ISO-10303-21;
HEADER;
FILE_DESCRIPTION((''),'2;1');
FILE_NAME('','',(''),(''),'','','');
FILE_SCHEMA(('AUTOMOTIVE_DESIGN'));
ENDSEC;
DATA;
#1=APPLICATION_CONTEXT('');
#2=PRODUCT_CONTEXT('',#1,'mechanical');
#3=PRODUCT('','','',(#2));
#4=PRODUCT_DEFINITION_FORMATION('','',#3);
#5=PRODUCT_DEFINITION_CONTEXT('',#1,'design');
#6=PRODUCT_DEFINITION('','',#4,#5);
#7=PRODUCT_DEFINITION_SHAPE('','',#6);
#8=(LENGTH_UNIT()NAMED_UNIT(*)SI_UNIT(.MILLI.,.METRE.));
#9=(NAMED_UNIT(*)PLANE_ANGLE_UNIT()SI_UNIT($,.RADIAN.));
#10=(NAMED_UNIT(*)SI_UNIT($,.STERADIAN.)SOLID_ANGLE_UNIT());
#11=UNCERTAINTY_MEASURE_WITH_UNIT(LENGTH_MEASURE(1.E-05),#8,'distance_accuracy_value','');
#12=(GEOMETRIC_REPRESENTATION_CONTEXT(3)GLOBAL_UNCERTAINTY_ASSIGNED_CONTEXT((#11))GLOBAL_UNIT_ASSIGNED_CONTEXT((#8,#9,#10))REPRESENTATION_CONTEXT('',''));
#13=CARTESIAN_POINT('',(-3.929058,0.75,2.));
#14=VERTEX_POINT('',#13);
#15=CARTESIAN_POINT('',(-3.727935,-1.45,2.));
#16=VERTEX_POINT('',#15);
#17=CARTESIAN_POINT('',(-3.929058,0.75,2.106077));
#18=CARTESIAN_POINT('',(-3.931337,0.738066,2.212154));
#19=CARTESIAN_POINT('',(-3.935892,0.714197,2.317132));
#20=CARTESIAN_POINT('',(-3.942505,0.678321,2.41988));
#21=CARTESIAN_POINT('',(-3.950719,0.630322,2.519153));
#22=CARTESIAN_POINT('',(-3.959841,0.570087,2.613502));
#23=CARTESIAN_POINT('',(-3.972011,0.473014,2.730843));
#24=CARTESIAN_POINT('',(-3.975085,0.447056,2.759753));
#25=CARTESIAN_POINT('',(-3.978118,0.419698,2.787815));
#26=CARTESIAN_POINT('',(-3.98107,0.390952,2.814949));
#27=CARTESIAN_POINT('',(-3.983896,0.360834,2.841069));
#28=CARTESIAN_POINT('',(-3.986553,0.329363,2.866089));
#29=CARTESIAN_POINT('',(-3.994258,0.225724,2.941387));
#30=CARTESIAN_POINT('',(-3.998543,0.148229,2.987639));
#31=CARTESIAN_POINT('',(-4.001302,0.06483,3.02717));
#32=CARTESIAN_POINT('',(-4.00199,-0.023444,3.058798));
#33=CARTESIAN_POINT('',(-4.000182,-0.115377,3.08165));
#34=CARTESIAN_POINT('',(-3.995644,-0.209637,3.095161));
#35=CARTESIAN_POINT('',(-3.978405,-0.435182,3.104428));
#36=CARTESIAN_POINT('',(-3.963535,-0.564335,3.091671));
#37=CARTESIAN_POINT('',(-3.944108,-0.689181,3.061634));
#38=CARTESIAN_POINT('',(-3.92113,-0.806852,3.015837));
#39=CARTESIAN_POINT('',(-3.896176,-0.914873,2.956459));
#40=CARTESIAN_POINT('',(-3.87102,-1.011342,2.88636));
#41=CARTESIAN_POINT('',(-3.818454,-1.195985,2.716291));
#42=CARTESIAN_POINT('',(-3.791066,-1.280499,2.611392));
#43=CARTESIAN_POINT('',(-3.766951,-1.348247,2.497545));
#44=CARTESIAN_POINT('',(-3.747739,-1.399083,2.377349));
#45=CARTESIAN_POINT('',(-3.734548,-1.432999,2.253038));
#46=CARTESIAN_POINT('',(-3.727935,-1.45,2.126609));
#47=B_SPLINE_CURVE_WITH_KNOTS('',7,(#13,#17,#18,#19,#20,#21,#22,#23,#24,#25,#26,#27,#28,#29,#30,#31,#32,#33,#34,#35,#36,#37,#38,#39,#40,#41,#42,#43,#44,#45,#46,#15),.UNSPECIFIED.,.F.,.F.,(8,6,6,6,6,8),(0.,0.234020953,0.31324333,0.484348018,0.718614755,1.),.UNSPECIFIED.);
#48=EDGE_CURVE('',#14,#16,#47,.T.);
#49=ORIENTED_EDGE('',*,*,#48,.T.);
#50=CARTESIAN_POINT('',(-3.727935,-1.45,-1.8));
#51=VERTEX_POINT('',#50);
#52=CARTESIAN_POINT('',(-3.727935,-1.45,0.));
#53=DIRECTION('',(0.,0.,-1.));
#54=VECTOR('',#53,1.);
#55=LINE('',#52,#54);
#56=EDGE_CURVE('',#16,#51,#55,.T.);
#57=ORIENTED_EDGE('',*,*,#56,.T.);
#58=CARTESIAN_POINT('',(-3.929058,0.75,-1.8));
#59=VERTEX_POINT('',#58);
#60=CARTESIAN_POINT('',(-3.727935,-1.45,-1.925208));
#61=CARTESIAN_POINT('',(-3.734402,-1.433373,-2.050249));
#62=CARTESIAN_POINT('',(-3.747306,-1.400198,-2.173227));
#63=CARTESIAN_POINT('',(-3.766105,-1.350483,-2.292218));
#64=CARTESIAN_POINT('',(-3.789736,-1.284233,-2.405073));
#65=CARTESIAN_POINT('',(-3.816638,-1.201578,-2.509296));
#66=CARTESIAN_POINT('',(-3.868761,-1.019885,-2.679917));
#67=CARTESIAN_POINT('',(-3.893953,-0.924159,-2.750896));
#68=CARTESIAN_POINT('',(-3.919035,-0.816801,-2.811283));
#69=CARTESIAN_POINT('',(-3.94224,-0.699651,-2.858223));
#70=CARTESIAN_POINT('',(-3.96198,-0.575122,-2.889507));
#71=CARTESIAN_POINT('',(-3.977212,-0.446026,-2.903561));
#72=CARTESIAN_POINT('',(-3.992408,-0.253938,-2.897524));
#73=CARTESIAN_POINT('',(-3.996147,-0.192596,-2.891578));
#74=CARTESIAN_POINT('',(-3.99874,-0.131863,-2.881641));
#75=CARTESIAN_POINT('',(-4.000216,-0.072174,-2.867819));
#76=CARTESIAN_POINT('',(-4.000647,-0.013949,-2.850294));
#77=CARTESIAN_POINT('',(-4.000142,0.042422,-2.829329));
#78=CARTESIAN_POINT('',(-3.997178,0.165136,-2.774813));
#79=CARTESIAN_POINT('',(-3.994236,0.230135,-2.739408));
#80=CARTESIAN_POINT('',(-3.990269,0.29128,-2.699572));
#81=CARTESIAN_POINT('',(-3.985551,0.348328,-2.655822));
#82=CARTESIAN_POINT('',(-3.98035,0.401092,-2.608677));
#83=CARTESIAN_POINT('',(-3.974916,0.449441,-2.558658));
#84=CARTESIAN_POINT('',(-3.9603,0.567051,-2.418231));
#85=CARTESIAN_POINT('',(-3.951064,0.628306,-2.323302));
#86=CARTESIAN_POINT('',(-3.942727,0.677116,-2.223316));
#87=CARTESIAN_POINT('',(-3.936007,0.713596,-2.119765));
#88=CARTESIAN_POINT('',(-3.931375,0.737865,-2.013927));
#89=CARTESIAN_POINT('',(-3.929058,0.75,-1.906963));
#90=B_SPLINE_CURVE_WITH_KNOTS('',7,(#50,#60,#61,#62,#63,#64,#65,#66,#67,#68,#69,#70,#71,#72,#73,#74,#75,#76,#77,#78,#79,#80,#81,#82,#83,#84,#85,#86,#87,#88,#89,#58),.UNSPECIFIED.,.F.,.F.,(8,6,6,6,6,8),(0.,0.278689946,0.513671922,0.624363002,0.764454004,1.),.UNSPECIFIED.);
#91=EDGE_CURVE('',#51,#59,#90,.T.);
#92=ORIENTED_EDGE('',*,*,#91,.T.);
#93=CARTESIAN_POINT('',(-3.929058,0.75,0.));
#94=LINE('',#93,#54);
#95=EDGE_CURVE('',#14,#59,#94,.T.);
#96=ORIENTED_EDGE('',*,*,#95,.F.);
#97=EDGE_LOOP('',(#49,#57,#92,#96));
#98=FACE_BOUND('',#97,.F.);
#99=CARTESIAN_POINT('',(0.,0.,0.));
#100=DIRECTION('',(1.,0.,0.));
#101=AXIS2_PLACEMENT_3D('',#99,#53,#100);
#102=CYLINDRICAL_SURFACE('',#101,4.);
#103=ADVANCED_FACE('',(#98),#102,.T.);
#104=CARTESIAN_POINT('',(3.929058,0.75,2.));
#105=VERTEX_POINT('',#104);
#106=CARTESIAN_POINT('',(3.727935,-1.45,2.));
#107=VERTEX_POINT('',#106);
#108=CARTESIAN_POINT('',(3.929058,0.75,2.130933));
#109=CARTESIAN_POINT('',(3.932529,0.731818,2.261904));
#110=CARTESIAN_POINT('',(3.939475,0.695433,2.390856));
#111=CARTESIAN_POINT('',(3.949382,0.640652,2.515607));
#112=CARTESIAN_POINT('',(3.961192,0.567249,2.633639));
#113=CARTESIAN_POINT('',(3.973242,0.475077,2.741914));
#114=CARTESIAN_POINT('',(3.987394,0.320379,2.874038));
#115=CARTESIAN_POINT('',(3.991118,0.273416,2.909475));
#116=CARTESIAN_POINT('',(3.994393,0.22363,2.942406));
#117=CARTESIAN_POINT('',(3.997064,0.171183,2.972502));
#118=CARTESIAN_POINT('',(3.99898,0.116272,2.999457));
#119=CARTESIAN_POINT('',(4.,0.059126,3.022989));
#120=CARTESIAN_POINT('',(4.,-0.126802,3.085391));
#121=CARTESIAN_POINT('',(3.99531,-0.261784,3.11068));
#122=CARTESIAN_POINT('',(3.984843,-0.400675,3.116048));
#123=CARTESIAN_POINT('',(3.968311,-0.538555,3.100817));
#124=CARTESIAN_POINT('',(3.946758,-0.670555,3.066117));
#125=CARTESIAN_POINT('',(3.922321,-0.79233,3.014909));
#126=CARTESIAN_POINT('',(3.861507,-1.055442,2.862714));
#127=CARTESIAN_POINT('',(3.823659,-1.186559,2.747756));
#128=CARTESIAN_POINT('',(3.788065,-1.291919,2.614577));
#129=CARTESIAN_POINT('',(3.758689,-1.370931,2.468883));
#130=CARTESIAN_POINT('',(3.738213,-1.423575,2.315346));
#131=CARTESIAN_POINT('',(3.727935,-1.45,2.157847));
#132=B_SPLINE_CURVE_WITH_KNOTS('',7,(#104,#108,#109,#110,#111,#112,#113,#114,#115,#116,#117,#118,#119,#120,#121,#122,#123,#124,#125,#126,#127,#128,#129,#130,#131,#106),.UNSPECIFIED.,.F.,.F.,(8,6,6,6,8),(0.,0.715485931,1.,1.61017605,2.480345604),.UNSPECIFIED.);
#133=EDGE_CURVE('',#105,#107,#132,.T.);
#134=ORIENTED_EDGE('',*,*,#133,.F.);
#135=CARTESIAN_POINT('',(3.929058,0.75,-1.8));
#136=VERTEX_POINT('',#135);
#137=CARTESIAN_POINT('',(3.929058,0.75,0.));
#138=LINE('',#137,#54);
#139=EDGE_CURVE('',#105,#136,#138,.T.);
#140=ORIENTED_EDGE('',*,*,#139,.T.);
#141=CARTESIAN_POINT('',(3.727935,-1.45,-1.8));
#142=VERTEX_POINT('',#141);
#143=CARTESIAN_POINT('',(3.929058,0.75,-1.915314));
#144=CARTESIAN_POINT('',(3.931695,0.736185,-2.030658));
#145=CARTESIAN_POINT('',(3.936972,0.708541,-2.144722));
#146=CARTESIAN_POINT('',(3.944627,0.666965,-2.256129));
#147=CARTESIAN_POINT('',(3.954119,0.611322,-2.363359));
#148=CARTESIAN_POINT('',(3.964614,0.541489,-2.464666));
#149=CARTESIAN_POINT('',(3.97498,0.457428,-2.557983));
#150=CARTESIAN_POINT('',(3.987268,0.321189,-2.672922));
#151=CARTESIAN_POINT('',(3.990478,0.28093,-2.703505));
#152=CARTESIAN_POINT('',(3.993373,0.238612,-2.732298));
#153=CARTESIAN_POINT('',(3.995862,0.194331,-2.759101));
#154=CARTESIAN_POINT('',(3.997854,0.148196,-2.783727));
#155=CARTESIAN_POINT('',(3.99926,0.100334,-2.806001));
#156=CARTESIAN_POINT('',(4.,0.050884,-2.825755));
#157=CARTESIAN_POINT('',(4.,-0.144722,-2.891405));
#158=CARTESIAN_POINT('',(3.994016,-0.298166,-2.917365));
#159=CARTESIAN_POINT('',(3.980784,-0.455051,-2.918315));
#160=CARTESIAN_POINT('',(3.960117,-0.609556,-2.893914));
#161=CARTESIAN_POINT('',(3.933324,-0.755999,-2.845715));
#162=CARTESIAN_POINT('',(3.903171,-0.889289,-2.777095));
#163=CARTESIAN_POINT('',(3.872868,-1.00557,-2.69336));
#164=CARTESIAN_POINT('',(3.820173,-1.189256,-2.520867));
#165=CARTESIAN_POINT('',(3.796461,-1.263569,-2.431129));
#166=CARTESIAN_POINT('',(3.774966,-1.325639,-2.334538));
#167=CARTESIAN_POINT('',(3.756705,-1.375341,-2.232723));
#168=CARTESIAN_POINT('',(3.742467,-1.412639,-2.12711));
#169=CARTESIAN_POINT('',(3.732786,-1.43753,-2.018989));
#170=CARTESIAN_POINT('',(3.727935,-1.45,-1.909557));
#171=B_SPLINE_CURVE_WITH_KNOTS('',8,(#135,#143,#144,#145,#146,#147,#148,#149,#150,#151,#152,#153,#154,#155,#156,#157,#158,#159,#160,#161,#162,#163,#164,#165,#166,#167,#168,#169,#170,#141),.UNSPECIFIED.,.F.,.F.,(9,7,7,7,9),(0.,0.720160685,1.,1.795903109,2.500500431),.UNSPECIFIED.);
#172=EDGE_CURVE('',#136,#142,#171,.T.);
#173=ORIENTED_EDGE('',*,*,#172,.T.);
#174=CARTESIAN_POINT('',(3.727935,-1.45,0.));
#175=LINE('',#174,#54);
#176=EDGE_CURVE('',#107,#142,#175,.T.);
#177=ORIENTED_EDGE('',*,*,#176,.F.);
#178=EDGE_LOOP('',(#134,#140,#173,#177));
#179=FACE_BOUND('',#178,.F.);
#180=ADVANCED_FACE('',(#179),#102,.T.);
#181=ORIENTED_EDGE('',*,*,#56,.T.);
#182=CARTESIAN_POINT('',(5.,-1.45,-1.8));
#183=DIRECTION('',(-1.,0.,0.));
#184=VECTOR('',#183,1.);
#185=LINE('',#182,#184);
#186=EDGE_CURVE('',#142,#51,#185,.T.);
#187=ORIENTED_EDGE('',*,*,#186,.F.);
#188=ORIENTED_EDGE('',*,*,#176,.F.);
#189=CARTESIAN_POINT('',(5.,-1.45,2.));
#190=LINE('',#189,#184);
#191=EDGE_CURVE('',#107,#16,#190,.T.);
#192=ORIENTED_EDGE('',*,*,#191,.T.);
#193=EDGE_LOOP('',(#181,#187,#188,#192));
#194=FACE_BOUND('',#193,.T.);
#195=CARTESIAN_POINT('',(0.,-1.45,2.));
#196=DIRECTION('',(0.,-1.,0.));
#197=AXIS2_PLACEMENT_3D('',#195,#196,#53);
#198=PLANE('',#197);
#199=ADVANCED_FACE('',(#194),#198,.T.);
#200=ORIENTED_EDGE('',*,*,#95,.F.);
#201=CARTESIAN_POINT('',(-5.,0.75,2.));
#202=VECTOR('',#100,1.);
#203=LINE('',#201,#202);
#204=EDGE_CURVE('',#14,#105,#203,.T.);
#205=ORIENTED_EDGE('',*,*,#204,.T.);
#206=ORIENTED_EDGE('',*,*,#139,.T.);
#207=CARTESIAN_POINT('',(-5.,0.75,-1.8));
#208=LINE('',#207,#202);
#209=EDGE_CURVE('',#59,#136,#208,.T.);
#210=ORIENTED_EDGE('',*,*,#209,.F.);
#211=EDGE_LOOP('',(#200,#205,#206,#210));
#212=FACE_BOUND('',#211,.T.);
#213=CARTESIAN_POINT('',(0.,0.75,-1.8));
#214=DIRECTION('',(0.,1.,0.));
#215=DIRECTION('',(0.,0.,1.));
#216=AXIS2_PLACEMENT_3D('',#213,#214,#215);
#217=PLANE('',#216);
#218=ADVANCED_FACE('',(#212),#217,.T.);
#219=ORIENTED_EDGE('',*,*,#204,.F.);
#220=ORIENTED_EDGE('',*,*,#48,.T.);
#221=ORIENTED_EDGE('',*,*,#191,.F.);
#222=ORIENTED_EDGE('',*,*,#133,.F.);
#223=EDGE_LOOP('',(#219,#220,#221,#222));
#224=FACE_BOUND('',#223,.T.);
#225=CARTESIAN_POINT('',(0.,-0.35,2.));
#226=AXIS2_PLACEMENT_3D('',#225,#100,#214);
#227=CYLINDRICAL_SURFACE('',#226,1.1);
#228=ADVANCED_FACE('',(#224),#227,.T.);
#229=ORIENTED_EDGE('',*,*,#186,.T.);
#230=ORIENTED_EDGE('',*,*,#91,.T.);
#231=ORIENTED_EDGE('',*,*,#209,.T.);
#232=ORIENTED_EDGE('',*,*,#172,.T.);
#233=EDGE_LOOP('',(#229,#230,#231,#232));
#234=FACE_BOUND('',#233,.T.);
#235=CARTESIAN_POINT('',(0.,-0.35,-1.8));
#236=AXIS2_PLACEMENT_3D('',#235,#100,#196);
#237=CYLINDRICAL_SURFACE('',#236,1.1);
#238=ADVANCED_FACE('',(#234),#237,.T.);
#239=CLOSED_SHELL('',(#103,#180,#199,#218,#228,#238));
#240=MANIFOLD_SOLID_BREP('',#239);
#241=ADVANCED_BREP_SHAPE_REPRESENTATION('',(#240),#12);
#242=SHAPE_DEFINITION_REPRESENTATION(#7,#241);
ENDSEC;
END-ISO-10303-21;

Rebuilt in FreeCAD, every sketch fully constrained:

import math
import FreeCAD as App
import Part
import Sketcher
Q = App.Units.Quantity

doc = App.newDocument("Part")
body = doc.addObject("PartDesign::Body", "Body")

sketch1 = doc.addObject("Sketcher::SketchObject", "Sketch")
body.addObject(sketch1)
sketch1.AttachmentSupport = (doc.YZ_Plane, [""])
sketch1.MapMode = "FlatFace"
sketch1.addGeometry(Part.ArcOfCircle(Part.Circle(App.Vector(-0.3, -1.8, 0), App.Vector(0, 0, 1), 1.1), math.radians(180), math.radians(360)), False)
sketch1.addGeometry(Part.LineSegment(App.Vector(0.8, -1.8, 0), App.Vector(0.8, 2, 0)), False)
sketch1.addGeometry(Part.ArcOfCircle(Part.Circle(App.Vector(-0.3, 2, 0), App.Vector(0, 0, 1), 1.1), math.radians(0), math.radians(180)), False)
sketch1.addGeometry(Part.LineSegment(App.Vector(-1.4, 2, 0), App.Vector(-1.4, -1.8, 0)), False)
sketch1.addConstraint(Sketcher.Constraint("Tangent", 0, 2, 1, 1))
sketch1.addConstraint(Sketcher.Constraint("Tangent", 1, 2, 2, 1))
sketch1.addConstraint(Sketcher.Constraint("Tangent", 2, 2, 3, 1))
sketch1.addConstraint(Sketcher.Constraint("Tangent", 3, 2, 0, 1))
sketch1.addConstraint(Sketcher.Constraint("Vertical", 1))
sketch1.addConstraint(Sketcher.Constraint("Vertical", 3))
sketch1.addConstraint(Sketcher.Constraint("Radius", 0, Q("1.1 mm")))
sketch1.addConstraint(Sketcher.Constraint("DistanceY", 1, 1, 1, 2, Q("3.8 mm")))
sketch1.addConstraint(Sketcher.Constraint("DistanceY", -1, 1, 2, 3, Q("2 mm")))
sketch1.addConstraint(Sketcher.Constraint("DistanceX", 0, 3, -1, 1, Q("0.35 mm")))
pad1 = doc.addObject("PartDesign::Pad", "Pad")
body.addObject(pad1)
pad1.Profile = sketch1
pad1.Length = 10
pad1.Midplane = True

sketch2 = doc.addObject("Sketcher::SketchObject", "Sketch001")
body.addObject(sketch2)
sketch2.AttachmentSupport = (doc.XY_Plane, [""])
sketch2.MapMode = "FlatFace"
sketch2.addGeometry(Part.LineSegment(App.Vector(-10, 10, 0), App.Vector(-10, -10, 0)), False)
sketch2.addGeometry(Part.LineSegment(App.Vector(-10, -10, 0), App.Vector(10, -10, 0)), False)
sketch2.addGeometry(Part.LineSegment(App.Vector(10, -10, 0), App.Vector(10, 10, 0)), False)
sketch2.addGeometry(Part.LineSegment(App.Vector(10, 10, 0), App.Vector(-10, 10, 0)), False)
sketch2.addGeometry(Part.Circle(App.Vector(0, 0, 0), App.Vector(0, 0, 1), 4), False)
sketch2.addConstraint(Sketcher.Constraint("Coincident", 0, 2, 1, 1))
sketch2.addConstraint(Sketcher.Constraint("Coincident", 1, 2, 2, 1))
sketch2.addConstraint(Sketcher.Constraint("Coincident", 2, 2, 3, 1))
sketch2.addConstraint(Sketcher.Constraint("Coincident", 3, 2, 0, 1))
sketch2.addConstraint(Sketcher.Constraint("Vertical", 0))
sketch2.addConstraint(Sketcher.Constraint("Horizontal", 1))
sketch2.addConstraint(Sketcher.Constraint("Vertical", 2))
sketch2.addConstraint(Sketcher.Constraint("Horizontal", 3))
sketch2.addConstraint(Sketcher.Constraint("Coincident", 4, 3, -1, 1))
sketch2.addConstraint(Sketcher.Constraint("Symmetric", 0, 2, 2, 2, -1, 1))
sketch2.addConstraint(Sketcher.Constraint("Equal", 3, 0))
sketch2.addConstraint(Sketcher.Constraint("Diameter", 4, Q("8 mm")))
sketch2.addConstraint(Sketcher.Constraint("DistanceX", 1, 1, 1, 2, Q("20 mm")))
pocket1 = doc.addObject("PartDesign::Pocket", "Pocket")
body.addObject(pocket1)
pocket1.Profile = sketch2
pocket1.Length = 25
pocket1.Midplane = True

doc.recompute()
